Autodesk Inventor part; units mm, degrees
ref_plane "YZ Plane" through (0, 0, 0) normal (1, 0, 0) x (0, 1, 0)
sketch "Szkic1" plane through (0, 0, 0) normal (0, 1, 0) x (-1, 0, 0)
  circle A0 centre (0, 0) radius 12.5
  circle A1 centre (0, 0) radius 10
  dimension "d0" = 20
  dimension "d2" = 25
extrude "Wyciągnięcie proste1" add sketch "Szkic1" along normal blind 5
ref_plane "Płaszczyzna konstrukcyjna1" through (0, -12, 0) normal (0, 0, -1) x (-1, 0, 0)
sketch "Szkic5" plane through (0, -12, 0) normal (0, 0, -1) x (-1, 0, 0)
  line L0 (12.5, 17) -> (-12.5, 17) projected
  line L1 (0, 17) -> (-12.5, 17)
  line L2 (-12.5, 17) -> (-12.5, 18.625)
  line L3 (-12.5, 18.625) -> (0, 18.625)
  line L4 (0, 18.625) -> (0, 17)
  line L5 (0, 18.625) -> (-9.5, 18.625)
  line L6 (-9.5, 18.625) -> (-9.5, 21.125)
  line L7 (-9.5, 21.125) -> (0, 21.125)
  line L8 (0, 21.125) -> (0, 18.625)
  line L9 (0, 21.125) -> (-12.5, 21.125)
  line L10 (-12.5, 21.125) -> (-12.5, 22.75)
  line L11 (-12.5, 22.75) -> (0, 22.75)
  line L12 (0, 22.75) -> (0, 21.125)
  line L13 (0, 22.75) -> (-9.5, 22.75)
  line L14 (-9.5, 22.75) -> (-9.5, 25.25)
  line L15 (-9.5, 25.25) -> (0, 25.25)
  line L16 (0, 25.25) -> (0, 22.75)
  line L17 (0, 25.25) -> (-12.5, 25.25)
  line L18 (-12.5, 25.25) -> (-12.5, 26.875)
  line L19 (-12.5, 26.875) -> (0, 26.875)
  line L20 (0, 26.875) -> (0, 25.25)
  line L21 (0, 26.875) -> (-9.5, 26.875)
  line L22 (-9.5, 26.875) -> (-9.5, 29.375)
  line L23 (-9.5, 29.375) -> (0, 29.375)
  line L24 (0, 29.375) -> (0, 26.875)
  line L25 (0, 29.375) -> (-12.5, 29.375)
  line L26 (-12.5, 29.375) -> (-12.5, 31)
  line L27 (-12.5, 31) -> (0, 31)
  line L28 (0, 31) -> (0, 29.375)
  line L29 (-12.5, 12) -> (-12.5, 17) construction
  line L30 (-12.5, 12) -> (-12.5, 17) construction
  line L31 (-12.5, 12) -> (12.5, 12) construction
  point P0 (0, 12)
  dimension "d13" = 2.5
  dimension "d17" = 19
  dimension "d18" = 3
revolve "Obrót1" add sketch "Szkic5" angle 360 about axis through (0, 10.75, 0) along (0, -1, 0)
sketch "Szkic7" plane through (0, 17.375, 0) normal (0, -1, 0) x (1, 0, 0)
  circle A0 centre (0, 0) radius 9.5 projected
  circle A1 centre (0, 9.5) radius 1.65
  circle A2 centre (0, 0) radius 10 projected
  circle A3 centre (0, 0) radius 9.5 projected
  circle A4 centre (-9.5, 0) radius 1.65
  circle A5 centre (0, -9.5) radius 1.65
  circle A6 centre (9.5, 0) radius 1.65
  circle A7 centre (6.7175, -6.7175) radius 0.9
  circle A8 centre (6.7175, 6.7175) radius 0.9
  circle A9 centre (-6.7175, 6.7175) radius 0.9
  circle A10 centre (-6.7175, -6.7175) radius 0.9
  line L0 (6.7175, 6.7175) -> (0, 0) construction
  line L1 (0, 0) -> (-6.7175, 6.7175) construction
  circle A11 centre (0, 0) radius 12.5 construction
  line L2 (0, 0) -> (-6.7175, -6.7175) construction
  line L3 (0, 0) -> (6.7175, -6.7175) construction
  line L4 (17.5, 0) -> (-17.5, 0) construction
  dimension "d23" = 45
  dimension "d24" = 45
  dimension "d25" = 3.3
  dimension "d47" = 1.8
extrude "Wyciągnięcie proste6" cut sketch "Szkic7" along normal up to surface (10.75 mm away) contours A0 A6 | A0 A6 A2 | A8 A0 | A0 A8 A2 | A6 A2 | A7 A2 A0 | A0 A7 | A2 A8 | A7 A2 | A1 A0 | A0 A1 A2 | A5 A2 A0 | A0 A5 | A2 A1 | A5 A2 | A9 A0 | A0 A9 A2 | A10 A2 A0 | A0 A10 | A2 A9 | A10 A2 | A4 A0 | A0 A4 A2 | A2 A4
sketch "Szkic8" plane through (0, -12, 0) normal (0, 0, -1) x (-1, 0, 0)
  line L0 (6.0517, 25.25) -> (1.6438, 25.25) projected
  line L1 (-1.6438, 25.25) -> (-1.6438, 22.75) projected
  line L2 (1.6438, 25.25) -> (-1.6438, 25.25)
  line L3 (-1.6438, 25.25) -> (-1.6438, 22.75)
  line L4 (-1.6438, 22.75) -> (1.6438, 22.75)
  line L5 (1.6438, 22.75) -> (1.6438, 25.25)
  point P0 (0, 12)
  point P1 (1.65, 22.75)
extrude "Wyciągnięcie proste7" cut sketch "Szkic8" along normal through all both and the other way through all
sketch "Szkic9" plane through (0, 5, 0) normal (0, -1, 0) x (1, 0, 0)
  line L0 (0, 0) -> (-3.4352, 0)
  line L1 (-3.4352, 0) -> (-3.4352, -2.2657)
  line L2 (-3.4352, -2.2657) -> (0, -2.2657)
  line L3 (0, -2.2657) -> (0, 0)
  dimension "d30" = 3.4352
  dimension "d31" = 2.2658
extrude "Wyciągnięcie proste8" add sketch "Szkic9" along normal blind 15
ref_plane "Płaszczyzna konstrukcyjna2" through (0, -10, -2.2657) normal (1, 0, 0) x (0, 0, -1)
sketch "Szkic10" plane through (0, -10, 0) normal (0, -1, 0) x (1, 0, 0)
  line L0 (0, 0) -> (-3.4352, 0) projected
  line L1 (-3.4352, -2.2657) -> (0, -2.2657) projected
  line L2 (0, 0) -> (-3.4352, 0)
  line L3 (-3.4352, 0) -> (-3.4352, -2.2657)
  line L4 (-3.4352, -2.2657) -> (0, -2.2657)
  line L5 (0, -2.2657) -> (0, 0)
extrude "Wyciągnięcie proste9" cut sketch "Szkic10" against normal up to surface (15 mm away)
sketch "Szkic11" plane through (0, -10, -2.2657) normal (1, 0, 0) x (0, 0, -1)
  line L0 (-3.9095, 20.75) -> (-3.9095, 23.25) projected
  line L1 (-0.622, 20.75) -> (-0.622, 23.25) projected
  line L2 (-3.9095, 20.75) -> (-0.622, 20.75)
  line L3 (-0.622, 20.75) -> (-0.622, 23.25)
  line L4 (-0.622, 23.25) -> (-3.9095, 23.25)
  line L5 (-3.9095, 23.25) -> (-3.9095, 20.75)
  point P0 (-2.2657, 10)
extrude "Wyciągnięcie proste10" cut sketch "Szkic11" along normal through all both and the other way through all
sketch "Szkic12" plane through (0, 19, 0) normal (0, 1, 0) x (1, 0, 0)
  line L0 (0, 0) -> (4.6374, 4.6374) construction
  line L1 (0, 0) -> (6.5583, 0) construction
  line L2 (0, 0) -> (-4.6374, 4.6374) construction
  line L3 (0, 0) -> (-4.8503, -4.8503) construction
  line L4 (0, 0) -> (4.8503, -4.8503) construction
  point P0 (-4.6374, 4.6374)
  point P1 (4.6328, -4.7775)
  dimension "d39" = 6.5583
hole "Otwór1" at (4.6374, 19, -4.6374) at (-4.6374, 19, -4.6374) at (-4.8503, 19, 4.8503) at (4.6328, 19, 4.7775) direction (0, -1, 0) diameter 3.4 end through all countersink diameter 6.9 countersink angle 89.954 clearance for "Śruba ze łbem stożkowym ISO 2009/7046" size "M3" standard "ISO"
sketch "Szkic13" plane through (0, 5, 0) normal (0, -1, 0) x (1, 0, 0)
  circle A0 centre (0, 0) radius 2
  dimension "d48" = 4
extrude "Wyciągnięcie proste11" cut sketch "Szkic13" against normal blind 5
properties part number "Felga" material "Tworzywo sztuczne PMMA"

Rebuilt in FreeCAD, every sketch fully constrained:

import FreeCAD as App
import Part
import Sketcher

V = App.Vector
Q = App.Units.Quantity


def add_polygon(sketch, points):
    """Adds a closed chain of lines whose ends are joined by coincident constraints."""
    first, n = sketch.GeometryCount, len(points)
    for a, b in zip(points, points[1:] + points[:1]):
        sketch.addGeometry(Part.LineSegment(App.Vector(*a, 0), App.Vector(*b, 0)), False)
    for i in range(n):
        sketch.addConstraint(Sketcher.Constraint("Coincident", first + i, 2, first + (i + 1) % n, 1))

doc = App.newDocument("Part")
params = doc.addObject("Spreadsheet::Sheet", "Params")
for row, (alias, value) in enumerate([
    ("sketch1_diameter", "25 mm"),
    ("sketch1_diameter2", "20 mm"),
    ("pad1_length", "5 mm"),
    ("sketch2_width", "3 mm"),
    ("sketch2_height", "2.5 mm"),
    ("sketch2_height2", "14 mm"),
    ("sketch2_width2", "12.5 mm"),
    ("revolution_angle", "360 deg"),
    ("sketch3_diameter", "3.3 mm"),
    ("sketch3_diameter2", "1.8 mm"),
    ("pocket1_length", "10.75 mm"),
    ("sketch4_height", "2.5 mm"),
    ("pad2_length", "15 mm"),
    ("pocket3_length", "15 mm"),
    ("sketch7_width", "2.5 mm"),
    ("sketch8_diameter", "3.4 mm"),
    ("hole_diameter", "3.4 mm"),
    ("hole_csink_diameter", "6.9 mm"),
    ("sketch9_diameter", "4 mm"),
    ("pocket5_length", "5 mm"),
], start=1):
    params.set(f"A{row}", alias)
    params.set(f"B{row}", "=" + value)
    params.setAlias(f"B{row}", alias)

body = doc.addObject("PartDesign::Body", "Body")

# Sketch on XZ plane
sketch1 = doc.addObject("Sketcher::SketchObject", "Sketch")
body.addObject(sketch1)
sketch1.AttachmentSupport = (doc.XZ_Plane, [""])
sketch1.MapMode = "FlatFace"
sketch1.addGeometry(Part.Circle(V(0, 0, 0), V(0, 0, 1), 12), False)
sketch1.addGeometry(Part.Circle(V(0, 0, 0), V(0, 0, 1), 10), False)
sketch1.addConstraint(Sketcher.Constraint("Coincident", 0, 3, -1, 1))
sketch1.addConstraint(Sketcher.Constraint("Coincident", 1, 3, -1, 1))
sketch1.addConstraint(Sketcher.Constraint("Diameter", 0, Q("25 mm")))
sketch1.addConstraint(Sketcher.Constraint("Diameter", 1, Q("20 mm")))
sketch1.setExpression("Constraints[2]", "Params.sketch1_diameter")
sketch1.setExpression("Constraints[3]", "Params.sketch1_diameter2")
pad1 = doc.addObject("PartDesign::Pad", "Pad")
body.addObject(pad1)
pad1.Profile = sketch1
pad1.setExpression("Length", "Params.pad1_length")
pad1.Reversed = True

# Sketch on XY plane
sketch2 = doc.addObject("Sketcher::SketchObject", "Sketch001")
body.addObject(sketch2)
sketch2.AttachmentSupport = (doc.XY_Plane, [""])
sketch2.MapMode = "FlatFace"
add_polygon(sketch2, [(12.5, 5), (0, 5), (0, 19), (12.5, 19), (12.5, 17.4), (9.5, 17.4), (9.5, 14.9), (12.5, 14.9), (12.5, 13.2), (9.5, 13.2), (9.5, 10.8), (12.5, 10.8), (12.5, 9.1), (9.5, 9.1), (9.5, 6.6), (12.5, 6.6)])  # lines 0-15
sketch2.addConstraint(Sketcher.Constraint("Horizontal", 0))
sketch2.addConstraint(Sketcher.Constraint("Vertical", 1))
sketch2.addConstraint(Sketcher.Constraint("Horizontal", 2))
sketch2.addConstraint(Sketcher.Constraint("Vertical", 3))
sketch2.addConstraint(Sketcher.Constraint("Horizontal", 4))
sketch2.addConstraint(Sketcher.Constraint("Vertical", 5))
sketch2.addConstraint(Sketcher.Constraint("Horizontal", 6))
sketch2.addConstraint(Sketcher.Constraint("Vertical", 7))
sketch2.addConstraint(Sketcher.Constraint("Horizontal", 8))
sketch2.addConstraint(Sketcher.Constraint("Vertical", 9))
sketch2.addConstraint(Sketcher.Constraint("Horizontal", 10))
sketch2.addConstraint(Sketcher.Constraint("Vertical", 11))
sketch2.addConstraint(Sketcher.Constraint("Horizontal", 12))
sketch2.addConstraint(Sketcher.Constraint("Vertical", 13))
sketch2.addConstraint(Sketcher.Constraint("Horizontal", 14))
sketch2.addConstraint(Sketcher.Constraint("Vertical", 15))
sketch2.addConstraint(Sketcher.Constraint("PointOnObject", 0, 2, -2))
sketch2.addConstraint(Sketcher.Constraint("Vertical", 3, 2, 6, 2))
sketch2.addConstraint(Sketcher.Constraint("Vertical", 5, 2, 8, 2))
sketch2.addConstraint(Sketcher.Constraint("Vertical", 7, 2, 10, 2))
sketch2.addConstraint(Sketcher.Constraint("Vertical", 9, 2, 12, 2))
sketch2.addConstraint(Sketcher.Constraint("Vertical", 11, 2, 14, 2))
sketch2.addConstraint(Sketcher.Constraint("Equal", 3, 7))
sketch2.addConstraint(Sketcher.Constraint("Equal", 5, 9))
sketch2.addConstraint(Sketcher.Constraint("Equal", 7, 11))
sketch2.addConstraint(Sketcher.Constraint("Equal", 9, 13))
sketch2.addConstraint(Sketcher.Constraint("Equal", 11, 15))
sketch2.addConstraint(Sketcher.Constraint("DistanceX", 4, 2, 4, 1, Q("3 mm")))
sketch2.addConstraint(Sketcher.Constraint("DistanceY", 5, 2, 5, 1, Q("2.5 mm")))
sketch2.addConstraint(Sketcher.Constraint("DistanceY", -1, 1, 1, 2, Q("19 mm")))
sketch2.addConstraint(Sketcher.Constraint("DistanceY", 1, 1, 1, 2, Q("14 mm")))
sketch2.addConstraint(Sketcher.Constraint("DistanceX", 0, 2, 0, 1, Q("12.5 mm")))
sketch2.setExpression("Constraints[43]", "Params.sketch2_width")
sketch2.setExpression("Constraints[44]", "Params.sketch2_height")
sketch2.setExpression("Constraints[46]", "Params.sketch2_height2")
sketch2.setExpression("Constraints[47]", "Params.sketch2_width2")
revolution = doc.addObject("PartDesign::Revolution", "Revolution")
body.addObject(revolution)
revolution.Profile = sketch2
revolution.ReferenceAxis = (sketch2, ["V_Axis"])
revolution.setExpression("Angle", "Params.revolution_angle")

# Sketch on XZ plane
sketch3 = doc.addObject("Sketcher::SketchObject", "Sketch002")
body.addObject(sketch3)
sketch3.AttachmentSupport = (doc.XZ_Plane, [""])
sketch3.MapMode = "FlatFace"
sketch3.AttachmentOffset = App.Placement(V(0, 0, -17.375), App.Rotation())
sketch3.addGeometry(Part.Circle(V(9.5, 0, 0), V(0, 0, 1), 1.6), False)
sketch3.addGeometry(Part.Circle(V(6.7, 6.7, 0), V(0, 0, 1), 0.9), False)
sketch3.addGeometry(Part.Circle(V(6.7, -6.7, 0), V(0, 0, 1), 0.9), False)
sketch3.addGeometry(Part.Circle(V(0, 9.5, 0), V(0, 0, 1), 1.6), False)
sketch3.addGeometry(Part.Circle(V(0, -9.5, 0), V(0, 0, 1), 1.6), False)
sketch3.addGeometry(Part.Circle(V(-6.7, 6.7, 0), V(0, 0, 1), 0.9), False)
sketch3.addGeometry(Part.Circle(V(-6.7, -6.7, 0), V(0, 0, 1), 0.9), False)
sketch3.addGeometry(Part.Circle(V(-9.5, 0, 0), V(0, 0, 1), 1.6), False)
sketch3.addConstraint(Sketcher.Constraint("Equal", 1, 2))
sketch3.addConstraint(Sketcher.Constraint("Equal", 0, 3))
sketch3.addConstraint(Sketcher.Constraint("Equal", 3, 4))
sketch3.addConstraint(Sketcher.Constraint("Equal", 2, 5))
sketch3.addConstraint(Sketcher.Constraint("Equal", 5, 6))
sketch3.addConstraint(Sketcher.Constraint("Equal", 4, 7))
sketch3.addConstraint(Sketcher.Constraint("Symmetric", 3, 3, 4, 3, -1, 1))
sketch3.addConstraint(Sketcher.Constraint("Symmetric", 2, 3, 5, 3, -1, 1))
sketch3.addConstraint(Sketcher.Constraint("Symmetric", 1, 3, 6, 3, -1, 1))
sketch3.addConstraint(Sketcher.Constraint("Symmetric", 0, 3, 7, 3, -1, 1))
sketch3.addConstraint(Sketcher.Constraint("Symmetric", 1, 3, 5, 3, -2))
sketch3.addConstraint(Sketcher.Constraint("PointOnObject", 0, 3, -1))
sketch3.addConstraint(Sketcher.Constraint("PointOnObject", 3, 3, -2))
sketch3.addConstraint(Sketcher.Constraint("Diameter", 0, Q("3.3 mm")))
sketch3.addConstraint(Sketcher.Constraint("Diameter", 1, Q("1.8 mm")))
sketch3.addConstraint(Sketcher.Constraint("DistanceY", 4, 3, 3, 3, Q("19 mm")))
sketch3.addConstraint(Sketcher.Constraint("DistanceX", -1, 1, 0, 3, Q("9.5 mm")))
sketch3.addConstraint(Sketcher.Constraint("DistanceY", 2, 3, 1, 3, Q("13.435 mm")))
sketch3.addConstraint(Sketcher.Constraint("DistanceX", 5, 3, 1, 3, Q("13.435 mm")))
sketch3.setExpression("Constraints[13]", "Params.sketch3_diameter")
sketch3.setExpression("Constraints[14]", "Params.sketch3_diameter2")
pocket1 = doc.addObject("PartDesign::Pocket", "Pocket")
body.addObject(pocket1)
pocket1.Profile = sketch3
pocket1.setExpression("Length", "Params.pocket1_length")
pocket1.Reversed = True

# Sketch on XY plane
sketch4 = doc.addObject("Sketcher::SketchObject", "Sketch003")
body.addObject(sketch4)
sketch4.AttachmentSupport = (doc.XY_Plane, [""])
sketch4.MapMode = "FlatFace"
add_polygon(sketch4, [(-1.6, 13.2), (1.6, 13.2), (1.6, 10.8), (-1.6, 10.8)])  # lines 0-3
sketch4.addConstraint(Sketcher.Constraint("Horizontal", 0))
sketch4.addConstraint(Sketcher.Constraint("Vertical", 1))
sketch4.addConstraint(Sketcher.Constraint("Horizontal", 2))
sketch4.addConstraint(Sketcher.Constraint("Vertical", 3))
sketch4.addConstraint(Sketcher.Constraint("DistanceY", 1, 2, 1, 1, Q("2.5 mm")))
sketch4.addConstraint(Sketcher.Constraint("DistanceY", -1, 1, 0, 2, Q("13.25 mm")))
sketch4.addConstraint(Sketcher.Constraint("DistanceX", 0, 1, 0, 2, Q("3.2876 mm")))
sketch4.addConstraint(Sketcher.Constraint("DistanceX", -1, 1, 0, 2, Q("1.6438 mm")))
sketch4.setExpression("Constraints[8]", "Params.sketch4_height")
pocket2 = doc.addObject("PartDesign::Pocket", "Pocket001")
body.addObject(pocket2)
pocket2.Profile = sketch4
pocket2.Type = "ThroughAll"
pocket2.Midplane = True

# Sketch on XZ plane
sketch5 = doc.addObject("Sketcher::SketchObject", "Sketch004")
body.addObject(sketch5)
sketch5.AttachmentSupport = (doc.XZ_Plane, [""])
sketch5.MapMode = "FlatFace"
sketch5.AttachmentOffset = App.Placement(V(0, 0, -5), App.Rotation())
add_polygon(sketch5, [(0, -2.3), (0, 0), (-3.4, 0), (-3.4, -2.3)])  # lines 0-3
sketch5.addConstraint(Sketcher.Constraint("Vertical", 0))
sketch5.addConstraint(Sketcher.Constraint("Horizontal", 1))
sketch5.addConstraint(Sketcher.Constraint("Vertical", 2))
sketch5.addConstraint(Sketcher.Constraint("Horizontal", 3))
sketch5.addConstraint(Sketcher.Constraint("Coincident", 0, 2, -1, 1))
sketch5.addConstraint(Sketcher.Constraint("DistanceX", 1, 2, 1, 1, Q("3.4352 mm")))
sketch5.addConstraint(Sketcher.Constraint("DistanceY", 0, 1, 0, 2, Q("2.2657 mm")))
pad2 = doc.addObject("PartDesign::Pad", "Pad001")
body.addObject(pad2)
pad2.Profile = sketch5
pad2.setExpression("Length", "Params.pad2_length")

# Sketch on XZ plane
sketch6 = doc.addObject("Sketcher::SketchObject", "Sketch005")
body.addObject(sketch6)
sketch6.AttachmentSupport = (doc.XZ_Plane, [""])
sketch6.MapMode = "FlatFace"
sketch6.AttachmentOffset = App.Placement(V(0, 0, 10), App.Rotation())
add_polygon(sketch6, [(0, -2.3), (0, 0), (-3.4, 0), (-3.4, -2.3)])  # lines 0-3
sketch6.addConstraint(Sketcher.Constraint("Vertical", 0))
sketch6.addConstraint(Sketcher.Constraint("Horizontal", 1))
sketch6.addConstraint(Sketcher.Constraint("Vertical", 2))
sketch6.addConstraint(Sketcher.Constraint("Horizontal", 3))
sketch6.addConstraint(Sketcher.Constraint("Coincident", 0, 2, -1, 1))
sketch6.addConstraint(Sketcher.Constraint("DistanceX", 1, 2, 1, 1, Q("3.4352 mm")))
sketch6.addConstraint(Sketcher.Constraint("DistanceY", 0, 1, 0, 2, Q("2.2657 mm")))
pocket3 = doc.addObject("PartDesign::Pocket", "Pocket002")
body.addObject(pocket3)
pocket3.Profile = sketch6
pocket3.setExpression("Length", "Params.pocket3_length")

# Sketch on YZ plane
sketch7 = doc.addObject("Sketcher::SketchObject", "Sketch006")
body.addObject(sketch7)
sketch7.AttachmentSupport = (doc.YZ_Plane, [""])
sketch7.MapMode = "FlatFace"
add_polygon(sketch7, [(13.2, 1.6), (10.8, 1.6), (10.8, -1.6), (13.2, -1.6)])  # lines 0-3
sketch7.addConstraint(Sketcher.Constraint("Horizontal", 0))
sketch7.addConstraint(Sketcher.Constraint("Vertical", 1))
sketch7.addConstraint(Sketcher.Constraint("Horizontal", 2))
sketch7.addConstraint(Sketcher.Constraint("Vertical", 3))
sketch7.addConstraint(Sketcher.Constraint("DistanceX", 0, 2, 0, 1, Q("2.5 mm")))
sketch7.addConstraint(Sketcher.Constraint("DistanceX", -1, 1, 0, 2, Q("10.75 mm")))
sketch7.addConstraint(Sketcher.Constraint("DistanceY", 1, 2, 1, 1, Q("3.2875 mm")))
sketch7.addConstraint(Sketcher.Constraint("DistanceY", -1, 1, 0, 2, Q("1.6438 mm")))
sketch7.setExpression("Constraints[8]", "Params.sketch7_width")
pocket4 = doc.addObject("PartDesign::Pocket", "Pocket003")
body.addObject(pocket4)
pocket4.Profile = sketch7
pocket4.Type = "ThroughAll"
pocket4.Midplane = True

# Sketch on XZ plane
sketch8 = doc.addObject("Sketcher::SketchObject", "Sketch007")
body.addObject(sketch8)
sketch8.AttachmentSupport = (doc.XZ_Plane, [""])
sketch8.MapMode = "FlatFace"
sketch8.AttachmentOffset = App.Placement(V(0, 0, -19), App.Rotation())
sketch8.addGeometry(Part.Circle(V(4.6, -4.6, 0), V(0, 0, 1), 1.7), False)
sketch8.addGeometry(Part.Circle(V(-4.6, -4.6, 0), V(0, 0, 1), 1.7), False)
sketch8.addGeometry(Part.Circle(V(-4.9, 4.9, 0), V(0, 0, 1), 1.7), False)
sketch8.addGeometry(Part.Circle(V(4.6, 4.8, 0), V(0, 0, 1), 1.7), False)
sketch8.addConstraint(Sketcher.Constraint("Equal", 0, 1))
sketch8.addConstraint(Sketcher.Constraint("Equal", 1, 2))
sketch8.addConstraint(Sketcher.Constraint("Equal", 2, 3))
sketch8.addConstraint(Sketcher.Constraint("Symmetric", 0, 3, 1, 3, -2))
sketch8.addConstraint(Sketcher.Constraint("Diameter", 0, Q("3.4 mm")))
sketch8.addConstraint(Sketcher.Constraint("DistanceX", 2, 3, 1, 3, Q("0.213 mm")))
sketch8.addConstraint(Sketcher.Constraint("DistanceY", 0, 3, 3, 3, Q("9.415 mm")))
sketch8.addConstraint(Sketcher.Constraint("DistanceX", 2, 3, 3, 3, Q("9.483 mm")))
sketch8.addConstraint(Sketcher.Constraint("DistanceX", -1, 1, 0, 3, Q("4.6374 mm")))
sketch8.addConstraint(Sketcher.Constraint("DistanceY", 0, 3, -1, 1, Q("4.6374 mm")))
sketch8.addConstraint(Sketcher.Constraint("DistanceY", -1, 1, 2, 3, Q("4.8503 mm")))
sketch8.setExpression("Constraints[4]", "Params.sketch8_diameter")
doc.recompute()
hole = doc.addObject("PartDesign::Hole", "Hole")
body.addObject(hole)
hole.Profile = sketch8
hole.ThreadType = "None"
hole.setExpression("Diameter", "Params.hole_diameter")
hole.DepthType = "ThroughAll"
hole.HoleCutType = "Countersink"
hole.setExpression("HoleCutDiameter", "Params.hole_csink_diameter")
hole.HoleCutCountersinkAngle = 89.954
hole.Reversed = True

# Sketch on XZ plane
sketch9 = doc.addObject("Sketcher::SketchObject", "Sketch008")
body.addObject(sketch9)
sketch9.AttachmentSupport = (doc.XZ_Plane, [""])
sketch9.MapMode = "FlatFace"
sketch9.AttachmentOffset = App.Placement(V(0, 0, -5), App.Rotation())
sketch9.addGeometry(Part.Circle(V(0, 0, 0), V(0, 0, 1), 2), False)
sketch9.addConstraint(Sketcher.Constraint("Coincident", 0, 3, -1, 1))
sketch9.addConstraint(Sketcher.Constraint("Diameter", 0, Q("4 mm")))
sketch9.setExpression("Constraints[1]", "Params.sketch9_diameter")
pocket5 = doc.addObject("PartDesign::Pocket", "Pocket004")
body.addObject(pocket5)
pocket5.Profile = sketch9
pocket5.setExpression("Length", "Params.pocket5_length")

doc.recompute()
